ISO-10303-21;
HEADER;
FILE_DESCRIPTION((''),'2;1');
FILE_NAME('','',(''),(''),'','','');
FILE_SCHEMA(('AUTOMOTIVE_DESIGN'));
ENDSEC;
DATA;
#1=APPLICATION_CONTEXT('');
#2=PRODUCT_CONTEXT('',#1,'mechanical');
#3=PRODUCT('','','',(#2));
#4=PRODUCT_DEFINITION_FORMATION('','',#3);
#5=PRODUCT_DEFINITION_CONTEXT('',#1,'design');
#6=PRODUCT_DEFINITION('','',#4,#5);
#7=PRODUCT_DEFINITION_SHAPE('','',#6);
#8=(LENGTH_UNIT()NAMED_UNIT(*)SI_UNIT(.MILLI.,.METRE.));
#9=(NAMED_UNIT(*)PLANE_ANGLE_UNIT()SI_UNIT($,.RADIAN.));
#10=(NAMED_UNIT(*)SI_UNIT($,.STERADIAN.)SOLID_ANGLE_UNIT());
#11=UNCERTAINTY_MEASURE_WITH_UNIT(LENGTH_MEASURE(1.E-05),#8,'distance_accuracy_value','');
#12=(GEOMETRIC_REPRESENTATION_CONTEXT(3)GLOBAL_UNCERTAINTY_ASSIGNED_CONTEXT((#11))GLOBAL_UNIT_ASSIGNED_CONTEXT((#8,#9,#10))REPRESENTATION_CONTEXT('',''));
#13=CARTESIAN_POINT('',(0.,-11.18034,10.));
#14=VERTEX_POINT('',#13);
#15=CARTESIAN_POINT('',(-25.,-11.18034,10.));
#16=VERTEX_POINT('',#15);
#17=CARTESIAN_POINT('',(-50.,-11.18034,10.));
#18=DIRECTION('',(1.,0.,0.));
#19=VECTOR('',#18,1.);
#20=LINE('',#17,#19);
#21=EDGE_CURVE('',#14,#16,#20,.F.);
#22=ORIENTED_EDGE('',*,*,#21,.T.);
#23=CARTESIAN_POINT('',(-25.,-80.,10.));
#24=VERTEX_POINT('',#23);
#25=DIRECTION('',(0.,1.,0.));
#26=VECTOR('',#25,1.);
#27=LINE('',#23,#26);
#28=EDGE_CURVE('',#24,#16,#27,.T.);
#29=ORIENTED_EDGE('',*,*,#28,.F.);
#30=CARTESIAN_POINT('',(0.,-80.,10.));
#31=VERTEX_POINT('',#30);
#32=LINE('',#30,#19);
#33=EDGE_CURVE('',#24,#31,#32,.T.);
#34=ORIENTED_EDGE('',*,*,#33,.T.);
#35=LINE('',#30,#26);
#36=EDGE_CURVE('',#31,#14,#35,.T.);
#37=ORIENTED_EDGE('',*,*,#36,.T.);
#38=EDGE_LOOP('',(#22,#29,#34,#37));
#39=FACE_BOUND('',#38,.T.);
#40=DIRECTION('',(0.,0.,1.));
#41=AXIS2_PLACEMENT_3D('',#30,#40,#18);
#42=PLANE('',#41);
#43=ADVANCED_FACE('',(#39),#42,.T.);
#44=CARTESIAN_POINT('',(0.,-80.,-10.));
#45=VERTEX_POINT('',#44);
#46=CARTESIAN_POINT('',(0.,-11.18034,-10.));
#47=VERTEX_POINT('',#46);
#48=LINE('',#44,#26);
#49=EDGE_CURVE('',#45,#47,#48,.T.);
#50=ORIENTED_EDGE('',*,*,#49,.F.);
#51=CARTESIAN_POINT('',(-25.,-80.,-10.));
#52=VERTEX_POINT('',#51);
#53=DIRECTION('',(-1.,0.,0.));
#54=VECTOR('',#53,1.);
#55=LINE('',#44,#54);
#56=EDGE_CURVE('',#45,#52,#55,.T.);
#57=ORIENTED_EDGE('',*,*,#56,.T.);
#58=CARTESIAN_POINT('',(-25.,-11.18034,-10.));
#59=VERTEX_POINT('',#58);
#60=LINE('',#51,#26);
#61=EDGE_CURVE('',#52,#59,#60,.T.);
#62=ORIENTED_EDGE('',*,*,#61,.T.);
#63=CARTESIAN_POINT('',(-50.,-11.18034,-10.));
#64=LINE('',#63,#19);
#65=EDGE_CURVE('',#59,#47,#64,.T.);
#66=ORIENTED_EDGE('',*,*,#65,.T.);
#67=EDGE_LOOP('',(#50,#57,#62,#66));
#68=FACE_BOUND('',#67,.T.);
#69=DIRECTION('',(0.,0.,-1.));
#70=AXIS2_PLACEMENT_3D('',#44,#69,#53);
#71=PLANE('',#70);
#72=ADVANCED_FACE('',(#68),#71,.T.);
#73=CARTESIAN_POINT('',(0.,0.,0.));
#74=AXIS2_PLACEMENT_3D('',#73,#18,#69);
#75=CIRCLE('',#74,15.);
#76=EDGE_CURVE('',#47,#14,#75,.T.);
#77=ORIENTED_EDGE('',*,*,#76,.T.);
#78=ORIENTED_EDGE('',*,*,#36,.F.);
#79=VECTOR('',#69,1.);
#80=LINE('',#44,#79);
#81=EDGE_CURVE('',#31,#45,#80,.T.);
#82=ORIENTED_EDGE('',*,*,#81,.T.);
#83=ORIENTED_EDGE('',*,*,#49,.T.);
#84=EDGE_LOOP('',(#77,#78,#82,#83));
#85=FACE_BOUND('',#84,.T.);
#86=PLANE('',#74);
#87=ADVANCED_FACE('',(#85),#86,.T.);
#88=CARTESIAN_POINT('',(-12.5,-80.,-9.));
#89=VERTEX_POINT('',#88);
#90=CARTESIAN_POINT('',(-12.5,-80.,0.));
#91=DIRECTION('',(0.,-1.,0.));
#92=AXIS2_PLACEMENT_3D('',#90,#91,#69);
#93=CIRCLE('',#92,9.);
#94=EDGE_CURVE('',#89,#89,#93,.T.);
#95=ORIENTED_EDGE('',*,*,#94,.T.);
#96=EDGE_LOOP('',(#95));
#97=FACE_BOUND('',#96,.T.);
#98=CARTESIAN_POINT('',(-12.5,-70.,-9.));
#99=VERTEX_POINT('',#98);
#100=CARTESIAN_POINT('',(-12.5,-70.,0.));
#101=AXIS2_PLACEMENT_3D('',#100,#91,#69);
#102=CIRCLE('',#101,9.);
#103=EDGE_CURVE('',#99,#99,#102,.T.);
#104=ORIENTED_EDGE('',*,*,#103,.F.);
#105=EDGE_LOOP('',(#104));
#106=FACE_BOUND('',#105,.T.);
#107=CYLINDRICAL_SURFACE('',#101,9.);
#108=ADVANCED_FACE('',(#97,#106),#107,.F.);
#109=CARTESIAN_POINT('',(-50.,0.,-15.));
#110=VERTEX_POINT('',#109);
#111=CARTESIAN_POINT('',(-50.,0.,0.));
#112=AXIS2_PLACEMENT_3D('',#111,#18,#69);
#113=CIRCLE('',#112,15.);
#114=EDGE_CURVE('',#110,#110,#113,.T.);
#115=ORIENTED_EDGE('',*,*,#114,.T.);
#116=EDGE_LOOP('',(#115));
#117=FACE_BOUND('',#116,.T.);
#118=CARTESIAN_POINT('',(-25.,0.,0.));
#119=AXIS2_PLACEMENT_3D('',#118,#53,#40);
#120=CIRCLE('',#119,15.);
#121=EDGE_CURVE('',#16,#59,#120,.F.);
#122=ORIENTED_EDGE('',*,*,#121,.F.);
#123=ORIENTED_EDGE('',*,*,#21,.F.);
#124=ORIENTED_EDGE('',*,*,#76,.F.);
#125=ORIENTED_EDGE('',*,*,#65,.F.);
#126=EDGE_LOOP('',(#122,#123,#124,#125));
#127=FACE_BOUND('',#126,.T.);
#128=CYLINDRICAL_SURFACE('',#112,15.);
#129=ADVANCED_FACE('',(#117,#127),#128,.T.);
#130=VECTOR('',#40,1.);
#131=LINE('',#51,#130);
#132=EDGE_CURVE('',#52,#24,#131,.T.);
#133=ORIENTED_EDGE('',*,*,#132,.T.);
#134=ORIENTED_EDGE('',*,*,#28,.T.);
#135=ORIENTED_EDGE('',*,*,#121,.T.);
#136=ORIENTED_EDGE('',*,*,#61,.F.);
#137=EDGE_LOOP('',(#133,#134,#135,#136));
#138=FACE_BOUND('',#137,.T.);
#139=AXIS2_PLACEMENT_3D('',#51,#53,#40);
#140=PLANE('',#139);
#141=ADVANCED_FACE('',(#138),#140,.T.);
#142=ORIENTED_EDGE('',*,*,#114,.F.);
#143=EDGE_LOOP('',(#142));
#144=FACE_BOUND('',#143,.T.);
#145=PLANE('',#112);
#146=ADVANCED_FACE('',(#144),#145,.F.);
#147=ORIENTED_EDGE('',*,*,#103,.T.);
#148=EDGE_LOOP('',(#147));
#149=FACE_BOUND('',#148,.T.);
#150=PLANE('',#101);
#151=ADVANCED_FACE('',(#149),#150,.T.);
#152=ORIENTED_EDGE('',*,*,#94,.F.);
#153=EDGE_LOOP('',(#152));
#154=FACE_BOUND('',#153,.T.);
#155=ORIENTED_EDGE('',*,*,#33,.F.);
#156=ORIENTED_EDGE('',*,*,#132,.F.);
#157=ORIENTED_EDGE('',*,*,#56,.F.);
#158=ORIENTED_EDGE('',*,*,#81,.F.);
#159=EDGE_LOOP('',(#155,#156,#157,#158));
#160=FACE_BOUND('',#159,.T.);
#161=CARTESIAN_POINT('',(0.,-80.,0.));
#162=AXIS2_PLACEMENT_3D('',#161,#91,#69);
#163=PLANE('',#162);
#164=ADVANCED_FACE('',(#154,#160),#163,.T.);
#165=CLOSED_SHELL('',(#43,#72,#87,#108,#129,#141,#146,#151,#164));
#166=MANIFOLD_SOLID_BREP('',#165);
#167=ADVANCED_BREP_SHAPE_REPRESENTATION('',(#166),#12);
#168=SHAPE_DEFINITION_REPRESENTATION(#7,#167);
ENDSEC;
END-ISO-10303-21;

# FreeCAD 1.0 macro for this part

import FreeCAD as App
import Part
import Sketcher
from FreeCAD import Vector
Q = App.Units.Quantity


def add_polygon(sketch, points):
    """Adds a closed chain of lines whose ends are joined by coincident constraints."""
    first, n = sketch.GeometryCount, len(points)
    for a, b in zip(points, points[1:] + points[:1]):
        sketch.addGeometry(Part.LineSegment(App.Vector(*a, 0), App.Vector(*b, 0)), False)
    for i in range(n):
        sketch.addConstraint(Sketcher.Constraint("Coincident", first + i, 2, first + (i + 1) % n, 1))

doc = App.newDocument("Part")
body = doc.addObject("PartDesign::Body", "Body")

sketch1 = body.newObject("Sketcher::SketchObject", "Sketch")
sketch1.AttachmentSupport = (doc.getObject("YZ_Plane"), [""])
sketch1.MapMode = "FlatFace"
sketch1.addGeometry(Part.Circle(Vector(0, 0, 0), Vector(0, 0, 1), 15), False)
sketch1.addConstraint(Sketcher.Constraint("Coincident", 0, 3, -1, 1))
sketch1.addConstraint(Sketcher.Constraint("Diameter", 0, Q("30 mm")))
pad1 = body.newObject("PartDesign::Pad", "Pad")
pad1.Profile = sketch1
pad1.Length = 50
pad1.Reversed = True

sketch2 = body.newObject("Sketcher::SketchObject", "Sketch001")
sketch2.AttachmentSupport = (doc.getObject("XZ_Plane"), [""])
sketch2.MapMode = "FlatFace"
add_polygon(sketch2, [(-25, -10), (-25, 10), (0, 10), (0, -10)])
sketch2.addConstraint(Sketcher.Constraint("Vertical", 0))
sketch2.addConstraint(Sketcher.Constraint("Horizontal", 1))
sketch2.addConstraint(Sketcher.Constraint("Vertical", 2))
sketch2.addConstraint(Sketcher.Constraint("Horizontal", 3))
sketch2.addConstraint(Sketcher.Constraint("Symmetric", 1, 2, 2, 2, -1, 1))
sketch2.addConstraint(Sketcher.Constraint("DistanceX", 1, 1, 1, 2, Q("25 mm")))
sketch2.addConstraint(Sketcher.Constraint("DistanceY", 0, 1, 0, 2, Q("20 mm")))
pad2 = body.newObject("PartDesign::Pad", "Pad001")
pad2.Profile = sketch2
pad2.Length = 80

sketch3 = body.newObject("Sketcher::SketchObject", "Sketch002")
sketch3.AttachmentSupport = (doc.getObject("XZ_Plane"), [""])
sketch3.MapMode = "FlatFace"
sketch3.AttachmentOffset = App.Placement(Vector(0, 0, 80), App.Rotation())
sketch3.addGeometry(Part.Circle(Vector(-12.5, 0, 0), Vector(0, 0, 1), 9), False)
sketch3.addConstraint(Sketcher.Constraint("PointOnObject", 0, 3, -1))
sketch3.addConstraint(Sketcher.Constraint("Diameter", 0, Q("18 mm")))
sketch3.addConstraint(Sketcher.Constraint("DistanceX", 0, 3, -1, 1, Q("12.5 mm")))
pocket1 = body.newObject("PartDesign::Pocket", "Pocket")
pocket1.Profile = sketch3
pocket1.Length = 10

doc.recompute()
